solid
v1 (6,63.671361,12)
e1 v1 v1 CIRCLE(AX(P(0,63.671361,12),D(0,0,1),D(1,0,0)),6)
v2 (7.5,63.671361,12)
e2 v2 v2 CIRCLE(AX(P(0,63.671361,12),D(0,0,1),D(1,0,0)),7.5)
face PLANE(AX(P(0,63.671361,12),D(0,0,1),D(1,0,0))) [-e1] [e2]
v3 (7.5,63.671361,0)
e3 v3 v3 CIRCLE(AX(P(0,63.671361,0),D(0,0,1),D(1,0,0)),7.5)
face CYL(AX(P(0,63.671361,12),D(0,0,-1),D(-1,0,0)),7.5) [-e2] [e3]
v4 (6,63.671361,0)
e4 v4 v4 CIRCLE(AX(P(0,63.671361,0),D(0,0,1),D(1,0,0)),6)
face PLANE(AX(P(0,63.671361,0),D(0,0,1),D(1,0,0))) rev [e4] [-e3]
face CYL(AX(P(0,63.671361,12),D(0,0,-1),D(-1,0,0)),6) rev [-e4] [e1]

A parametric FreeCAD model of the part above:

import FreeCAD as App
import Part
import Sketcher
from FreeCAD import Vector

doc = App.newDocument("Part")
body = doc.addObject("PartDesign::Body", "Body")

# Sketch on XY plane
sketch1 = body.newObject("Sketcher::SketchObject", "Sketch")
sketch1.AttachmentSupport = (doc.getObject("XY_Plane"), [""])
sketch1.MapMode = "FlatFace"
sketch1.addGeometry([
    Part.Circle(Vector(0, 64, 0), Vector(0, 0, 1), 8),
    Part.Circle(Vector(0, 64, 0), Vector(0, 0, 1), 6),
], False)
sketch1.addConstraint([
    Sketcher.Constraint("Coincident", 1, 3, 0, 3),
    Sketcher.Constraint("PointOnObject", 0, 3, -2),
    Sketcher.Constraint("Diameter", 0, 15.0),
    Sketcher.Constraint("Diameter", 1, 12.0),
    Sketcher.Constraint("DistanceY", -1, 1, 0, 3, 63.671361),
])
pad1 = body.newObject("PartDesign::Pad", "Pad")
pad1.Profile = sketch1
pad1.Length = 12

doc.recompute()
